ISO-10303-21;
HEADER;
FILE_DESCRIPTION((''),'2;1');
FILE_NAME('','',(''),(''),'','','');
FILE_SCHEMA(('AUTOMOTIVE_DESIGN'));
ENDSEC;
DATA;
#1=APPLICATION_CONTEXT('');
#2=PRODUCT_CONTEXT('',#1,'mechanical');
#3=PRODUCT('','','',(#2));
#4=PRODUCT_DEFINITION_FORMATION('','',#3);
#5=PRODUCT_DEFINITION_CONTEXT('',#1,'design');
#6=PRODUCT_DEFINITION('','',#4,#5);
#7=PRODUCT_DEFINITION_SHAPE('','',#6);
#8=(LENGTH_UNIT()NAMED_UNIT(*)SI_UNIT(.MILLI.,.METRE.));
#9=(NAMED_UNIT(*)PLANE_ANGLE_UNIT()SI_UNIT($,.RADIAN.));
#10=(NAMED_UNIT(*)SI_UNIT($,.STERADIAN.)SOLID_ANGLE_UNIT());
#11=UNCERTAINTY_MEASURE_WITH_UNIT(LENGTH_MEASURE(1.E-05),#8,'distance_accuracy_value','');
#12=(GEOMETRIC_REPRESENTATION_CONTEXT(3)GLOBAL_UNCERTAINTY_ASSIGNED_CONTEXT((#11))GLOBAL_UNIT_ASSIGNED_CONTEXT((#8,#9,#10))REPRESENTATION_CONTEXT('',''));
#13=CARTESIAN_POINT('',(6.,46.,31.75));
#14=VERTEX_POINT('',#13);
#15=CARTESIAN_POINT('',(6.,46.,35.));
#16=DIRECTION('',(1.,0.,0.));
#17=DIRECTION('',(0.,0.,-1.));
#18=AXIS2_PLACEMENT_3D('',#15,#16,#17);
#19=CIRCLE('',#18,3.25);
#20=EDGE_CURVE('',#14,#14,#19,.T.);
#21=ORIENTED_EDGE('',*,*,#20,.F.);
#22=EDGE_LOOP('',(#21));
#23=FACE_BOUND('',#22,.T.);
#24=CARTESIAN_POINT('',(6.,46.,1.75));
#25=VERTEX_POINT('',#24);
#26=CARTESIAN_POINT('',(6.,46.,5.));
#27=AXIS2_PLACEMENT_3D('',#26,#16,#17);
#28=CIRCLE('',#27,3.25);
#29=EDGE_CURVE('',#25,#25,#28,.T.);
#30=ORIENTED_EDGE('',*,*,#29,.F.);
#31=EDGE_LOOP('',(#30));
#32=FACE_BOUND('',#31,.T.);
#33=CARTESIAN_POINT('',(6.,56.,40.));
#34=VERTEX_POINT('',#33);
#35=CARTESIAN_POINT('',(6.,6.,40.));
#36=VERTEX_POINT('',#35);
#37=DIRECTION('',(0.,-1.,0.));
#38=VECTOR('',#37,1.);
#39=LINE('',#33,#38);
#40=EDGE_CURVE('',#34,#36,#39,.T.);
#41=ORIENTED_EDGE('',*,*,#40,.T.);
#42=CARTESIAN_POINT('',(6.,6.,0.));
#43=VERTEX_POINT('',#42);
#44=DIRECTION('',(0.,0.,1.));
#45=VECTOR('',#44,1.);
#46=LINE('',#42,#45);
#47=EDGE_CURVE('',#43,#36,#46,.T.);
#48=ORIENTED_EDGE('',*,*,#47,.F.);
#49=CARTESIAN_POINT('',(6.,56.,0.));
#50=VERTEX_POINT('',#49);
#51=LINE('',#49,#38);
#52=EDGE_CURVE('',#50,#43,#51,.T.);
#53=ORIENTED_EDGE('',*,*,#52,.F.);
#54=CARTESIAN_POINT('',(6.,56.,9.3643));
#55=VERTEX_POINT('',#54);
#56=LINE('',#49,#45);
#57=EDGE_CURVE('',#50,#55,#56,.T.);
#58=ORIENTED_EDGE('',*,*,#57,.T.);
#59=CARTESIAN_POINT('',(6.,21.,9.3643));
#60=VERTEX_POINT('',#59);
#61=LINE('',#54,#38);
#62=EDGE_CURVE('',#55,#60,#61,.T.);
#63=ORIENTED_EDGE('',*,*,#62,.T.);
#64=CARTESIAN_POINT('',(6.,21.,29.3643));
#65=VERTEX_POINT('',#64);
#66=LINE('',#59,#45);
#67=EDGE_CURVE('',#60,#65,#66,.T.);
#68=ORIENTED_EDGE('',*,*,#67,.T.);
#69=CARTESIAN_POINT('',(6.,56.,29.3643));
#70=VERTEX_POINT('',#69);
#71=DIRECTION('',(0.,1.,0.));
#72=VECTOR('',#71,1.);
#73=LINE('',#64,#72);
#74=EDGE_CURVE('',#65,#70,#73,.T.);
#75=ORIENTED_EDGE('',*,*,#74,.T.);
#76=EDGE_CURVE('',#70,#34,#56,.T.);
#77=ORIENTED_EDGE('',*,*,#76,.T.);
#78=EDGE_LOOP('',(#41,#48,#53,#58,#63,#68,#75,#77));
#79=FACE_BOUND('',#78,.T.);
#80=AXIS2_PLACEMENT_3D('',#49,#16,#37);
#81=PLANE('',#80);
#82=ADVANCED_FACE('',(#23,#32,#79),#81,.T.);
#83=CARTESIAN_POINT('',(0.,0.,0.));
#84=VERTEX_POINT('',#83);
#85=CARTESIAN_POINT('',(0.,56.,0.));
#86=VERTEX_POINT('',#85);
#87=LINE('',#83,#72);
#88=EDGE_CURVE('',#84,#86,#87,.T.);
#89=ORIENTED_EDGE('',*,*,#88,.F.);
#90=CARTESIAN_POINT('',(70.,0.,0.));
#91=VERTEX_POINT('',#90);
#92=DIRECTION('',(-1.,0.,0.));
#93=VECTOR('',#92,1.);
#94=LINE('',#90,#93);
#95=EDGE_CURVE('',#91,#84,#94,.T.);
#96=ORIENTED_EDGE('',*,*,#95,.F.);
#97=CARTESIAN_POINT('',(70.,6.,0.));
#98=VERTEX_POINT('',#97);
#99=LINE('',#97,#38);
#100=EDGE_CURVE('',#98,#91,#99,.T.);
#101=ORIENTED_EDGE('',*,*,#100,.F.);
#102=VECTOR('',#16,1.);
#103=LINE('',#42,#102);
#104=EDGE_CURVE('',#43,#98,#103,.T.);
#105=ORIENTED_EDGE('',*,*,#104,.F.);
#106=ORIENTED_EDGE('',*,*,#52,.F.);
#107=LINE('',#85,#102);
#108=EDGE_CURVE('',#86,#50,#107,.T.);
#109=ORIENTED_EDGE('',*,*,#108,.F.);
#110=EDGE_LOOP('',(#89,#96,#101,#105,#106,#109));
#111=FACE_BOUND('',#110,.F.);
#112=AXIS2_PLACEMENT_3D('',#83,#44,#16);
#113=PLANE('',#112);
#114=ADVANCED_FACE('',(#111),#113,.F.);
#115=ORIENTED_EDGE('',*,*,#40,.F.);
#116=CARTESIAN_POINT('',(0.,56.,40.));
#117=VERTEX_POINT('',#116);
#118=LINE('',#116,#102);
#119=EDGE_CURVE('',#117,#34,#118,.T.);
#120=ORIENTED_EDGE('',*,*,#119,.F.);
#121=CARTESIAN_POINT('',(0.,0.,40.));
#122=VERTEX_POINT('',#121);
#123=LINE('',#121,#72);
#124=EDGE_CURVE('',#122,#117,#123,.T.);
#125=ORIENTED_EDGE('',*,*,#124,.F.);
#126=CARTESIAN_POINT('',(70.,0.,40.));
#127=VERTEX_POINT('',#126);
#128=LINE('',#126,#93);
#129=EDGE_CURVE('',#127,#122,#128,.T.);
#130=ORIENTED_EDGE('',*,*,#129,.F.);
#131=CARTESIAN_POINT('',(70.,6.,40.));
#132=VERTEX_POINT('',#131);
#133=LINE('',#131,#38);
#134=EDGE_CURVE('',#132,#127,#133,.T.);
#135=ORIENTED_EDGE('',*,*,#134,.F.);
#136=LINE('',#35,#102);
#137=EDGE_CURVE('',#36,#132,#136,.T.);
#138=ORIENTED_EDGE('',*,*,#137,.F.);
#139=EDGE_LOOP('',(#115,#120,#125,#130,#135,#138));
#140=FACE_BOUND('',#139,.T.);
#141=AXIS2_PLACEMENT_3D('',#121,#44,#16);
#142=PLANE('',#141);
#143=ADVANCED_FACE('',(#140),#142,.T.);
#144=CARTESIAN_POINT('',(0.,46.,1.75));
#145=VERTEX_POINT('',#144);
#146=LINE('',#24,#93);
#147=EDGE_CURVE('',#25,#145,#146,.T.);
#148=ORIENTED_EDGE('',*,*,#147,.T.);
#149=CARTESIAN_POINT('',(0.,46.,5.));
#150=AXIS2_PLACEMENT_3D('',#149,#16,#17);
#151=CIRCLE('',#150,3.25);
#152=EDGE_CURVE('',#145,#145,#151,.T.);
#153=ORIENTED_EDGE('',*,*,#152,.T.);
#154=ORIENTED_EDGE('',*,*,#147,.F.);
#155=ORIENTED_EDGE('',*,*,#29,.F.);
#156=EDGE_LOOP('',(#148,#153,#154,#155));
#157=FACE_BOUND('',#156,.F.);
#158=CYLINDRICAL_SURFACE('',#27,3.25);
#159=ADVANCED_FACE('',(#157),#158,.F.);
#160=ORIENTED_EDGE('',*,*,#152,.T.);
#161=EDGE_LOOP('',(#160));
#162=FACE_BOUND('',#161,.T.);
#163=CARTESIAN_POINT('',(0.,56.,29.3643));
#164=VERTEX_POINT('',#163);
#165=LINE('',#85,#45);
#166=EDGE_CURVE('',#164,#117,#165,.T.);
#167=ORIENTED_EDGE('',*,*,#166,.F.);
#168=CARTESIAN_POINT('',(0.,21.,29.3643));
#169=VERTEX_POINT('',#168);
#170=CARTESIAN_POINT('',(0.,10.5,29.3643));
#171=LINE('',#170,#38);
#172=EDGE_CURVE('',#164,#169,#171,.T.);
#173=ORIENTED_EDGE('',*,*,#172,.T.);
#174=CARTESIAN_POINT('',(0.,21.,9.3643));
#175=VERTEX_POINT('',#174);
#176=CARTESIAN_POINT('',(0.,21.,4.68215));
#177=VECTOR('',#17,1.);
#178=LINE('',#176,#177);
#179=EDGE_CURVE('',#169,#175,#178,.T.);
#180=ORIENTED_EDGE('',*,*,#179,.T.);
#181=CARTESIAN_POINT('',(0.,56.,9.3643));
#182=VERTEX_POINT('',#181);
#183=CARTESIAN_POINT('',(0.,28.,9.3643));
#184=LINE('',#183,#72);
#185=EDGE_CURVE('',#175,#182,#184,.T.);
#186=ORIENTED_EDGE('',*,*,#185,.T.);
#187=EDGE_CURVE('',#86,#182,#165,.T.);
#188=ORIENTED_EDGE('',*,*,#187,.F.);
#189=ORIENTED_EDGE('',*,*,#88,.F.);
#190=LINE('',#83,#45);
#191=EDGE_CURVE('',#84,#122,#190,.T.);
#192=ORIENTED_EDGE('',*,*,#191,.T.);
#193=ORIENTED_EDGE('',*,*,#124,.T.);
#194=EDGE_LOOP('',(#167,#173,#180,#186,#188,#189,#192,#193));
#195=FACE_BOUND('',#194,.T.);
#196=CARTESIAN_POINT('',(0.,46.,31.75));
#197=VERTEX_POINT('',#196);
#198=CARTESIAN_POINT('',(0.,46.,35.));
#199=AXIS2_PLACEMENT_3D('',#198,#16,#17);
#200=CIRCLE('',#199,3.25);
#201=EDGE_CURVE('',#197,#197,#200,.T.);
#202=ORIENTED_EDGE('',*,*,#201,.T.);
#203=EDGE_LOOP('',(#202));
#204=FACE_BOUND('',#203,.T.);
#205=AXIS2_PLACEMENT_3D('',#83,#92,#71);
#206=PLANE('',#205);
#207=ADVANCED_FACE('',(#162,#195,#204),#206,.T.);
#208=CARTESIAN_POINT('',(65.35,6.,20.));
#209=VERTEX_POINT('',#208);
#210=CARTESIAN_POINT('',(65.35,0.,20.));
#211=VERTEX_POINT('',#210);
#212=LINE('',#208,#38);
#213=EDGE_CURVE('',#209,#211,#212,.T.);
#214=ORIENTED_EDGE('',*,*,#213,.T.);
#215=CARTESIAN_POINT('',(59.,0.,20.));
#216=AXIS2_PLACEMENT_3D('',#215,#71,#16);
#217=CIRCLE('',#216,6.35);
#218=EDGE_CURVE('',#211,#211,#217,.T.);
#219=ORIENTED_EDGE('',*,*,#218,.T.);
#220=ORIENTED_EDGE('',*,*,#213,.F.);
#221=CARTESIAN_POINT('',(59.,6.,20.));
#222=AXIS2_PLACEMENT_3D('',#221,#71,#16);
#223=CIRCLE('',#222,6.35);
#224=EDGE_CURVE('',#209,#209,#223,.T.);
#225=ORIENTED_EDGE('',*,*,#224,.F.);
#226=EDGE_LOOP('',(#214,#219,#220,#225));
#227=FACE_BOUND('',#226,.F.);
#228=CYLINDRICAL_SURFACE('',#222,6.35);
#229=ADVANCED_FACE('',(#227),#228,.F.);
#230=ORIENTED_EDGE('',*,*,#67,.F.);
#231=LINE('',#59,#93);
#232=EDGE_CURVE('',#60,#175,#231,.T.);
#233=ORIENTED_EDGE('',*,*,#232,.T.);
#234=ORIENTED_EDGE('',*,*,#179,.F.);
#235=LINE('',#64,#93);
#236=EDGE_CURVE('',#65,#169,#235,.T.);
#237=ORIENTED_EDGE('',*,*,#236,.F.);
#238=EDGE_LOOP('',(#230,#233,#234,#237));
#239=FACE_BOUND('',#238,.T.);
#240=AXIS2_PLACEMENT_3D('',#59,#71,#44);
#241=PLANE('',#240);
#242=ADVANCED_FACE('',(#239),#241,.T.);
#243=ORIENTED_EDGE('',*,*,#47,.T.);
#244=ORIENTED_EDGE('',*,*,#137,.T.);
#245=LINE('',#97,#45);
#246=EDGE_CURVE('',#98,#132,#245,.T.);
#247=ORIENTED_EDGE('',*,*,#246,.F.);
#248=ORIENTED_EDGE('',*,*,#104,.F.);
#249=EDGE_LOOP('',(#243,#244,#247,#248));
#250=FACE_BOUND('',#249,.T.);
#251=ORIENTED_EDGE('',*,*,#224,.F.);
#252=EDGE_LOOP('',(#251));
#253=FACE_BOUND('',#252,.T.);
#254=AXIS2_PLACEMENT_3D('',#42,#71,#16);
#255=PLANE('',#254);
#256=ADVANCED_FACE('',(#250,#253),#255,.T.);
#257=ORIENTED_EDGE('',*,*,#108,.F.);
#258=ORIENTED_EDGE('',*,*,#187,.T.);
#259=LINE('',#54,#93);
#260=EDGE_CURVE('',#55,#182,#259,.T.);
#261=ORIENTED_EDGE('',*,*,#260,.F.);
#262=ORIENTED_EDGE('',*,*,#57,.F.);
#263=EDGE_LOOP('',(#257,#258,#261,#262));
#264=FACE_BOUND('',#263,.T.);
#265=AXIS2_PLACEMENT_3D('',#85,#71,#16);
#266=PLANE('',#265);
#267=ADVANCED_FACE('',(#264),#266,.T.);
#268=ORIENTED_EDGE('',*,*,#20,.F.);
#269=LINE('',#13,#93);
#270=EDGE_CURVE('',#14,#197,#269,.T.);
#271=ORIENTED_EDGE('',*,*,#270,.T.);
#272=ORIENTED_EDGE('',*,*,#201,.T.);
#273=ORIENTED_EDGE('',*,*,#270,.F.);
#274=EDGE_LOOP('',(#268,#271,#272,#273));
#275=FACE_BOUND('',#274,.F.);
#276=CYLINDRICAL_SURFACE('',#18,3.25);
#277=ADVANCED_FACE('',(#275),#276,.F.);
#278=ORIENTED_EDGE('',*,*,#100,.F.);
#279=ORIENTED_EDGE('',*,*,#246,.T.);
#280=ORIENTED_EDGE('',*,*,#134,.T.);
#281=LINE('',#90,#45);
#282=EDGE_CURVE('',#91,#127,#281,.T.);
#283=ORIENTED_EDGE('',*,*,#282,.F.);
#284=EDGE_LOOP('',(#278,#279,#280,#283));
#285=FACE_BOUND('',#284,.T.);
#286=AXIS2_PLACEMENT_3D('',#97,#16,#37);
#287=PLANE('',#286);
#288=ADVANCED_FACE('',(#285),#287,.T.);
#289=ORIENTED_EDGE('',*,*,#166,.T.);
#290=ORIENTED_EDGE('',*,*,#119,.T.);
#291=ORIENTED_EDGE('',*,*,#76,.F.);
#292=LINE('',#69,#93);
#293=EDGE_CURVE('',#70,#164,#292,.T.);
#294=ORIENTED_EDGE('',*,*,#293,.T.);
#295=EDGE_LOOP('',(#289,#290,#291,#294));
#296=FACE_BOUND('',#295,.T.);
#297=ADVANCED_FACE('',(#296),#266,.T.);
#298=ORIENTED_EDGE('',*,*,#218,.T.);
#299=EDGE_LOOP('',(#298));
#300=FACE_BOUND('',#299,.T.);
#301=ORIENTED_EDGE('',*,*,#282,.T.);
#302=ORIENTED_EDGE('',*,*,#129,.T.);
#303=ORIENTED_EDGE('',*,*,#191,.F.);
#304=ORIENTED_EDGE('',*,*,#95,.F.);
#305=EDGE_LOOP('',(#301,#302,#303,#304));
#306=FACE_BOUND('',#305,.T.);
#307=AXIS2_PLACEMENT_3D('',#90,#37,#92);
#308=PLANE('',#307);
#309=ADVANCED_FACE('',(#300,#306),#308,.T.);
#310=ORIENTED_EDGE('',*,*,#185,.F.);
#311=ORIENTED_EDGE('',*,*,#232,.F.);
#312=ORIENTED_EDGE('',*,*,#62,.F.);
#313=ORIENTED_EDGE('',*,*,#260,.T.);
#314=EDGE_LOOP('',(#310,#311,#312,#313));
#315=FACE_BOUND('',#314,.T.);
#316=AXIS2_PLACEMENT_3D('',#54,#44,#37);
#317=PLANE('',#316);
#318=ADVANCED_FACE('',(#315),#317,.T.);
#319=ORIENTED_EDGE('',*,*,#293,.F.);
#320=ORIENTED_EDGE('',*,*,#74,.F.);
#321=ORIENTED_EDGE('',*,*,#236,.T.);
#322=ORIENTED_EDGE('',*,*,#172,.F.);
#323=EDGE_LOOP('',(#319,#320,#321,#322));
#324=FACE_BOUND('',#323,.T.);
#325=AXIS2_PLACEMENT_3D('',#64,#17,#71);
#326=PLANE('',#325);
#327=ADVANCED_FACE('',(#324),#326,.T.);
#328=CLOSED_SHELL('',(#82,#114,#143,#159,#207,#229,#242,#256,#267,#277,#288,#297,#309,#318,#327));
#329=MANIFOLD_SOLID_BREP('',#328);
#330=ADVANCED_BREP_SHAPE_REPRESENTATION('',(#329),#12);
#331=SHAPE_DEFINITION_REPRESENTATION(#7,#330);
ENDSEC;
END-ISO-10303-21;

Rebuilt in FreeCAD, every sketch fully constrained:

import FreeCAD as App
import Part
import Sketcher
Q = App.Units.Quantity

doc = App.newDocument("Part")
body = doc.addObject("PartDesign::Body", "Body")

# Sketch on XY plane
sketch1 = body.newObject("Sketcher::SketchObject", "Sketch")
sketch1.AttachmentSupport = (doc.getObject("XY_Plane"), [""])
sketch1.MapMode = "FlatFace"
sketch1.addGeometry(Part.LineSegment(App.Vector(0, 56, 0), App.Vector(0, 0, 0)), False)
sketch1.addGeometry(Part.LineSegment(App.Vector(0, 0, 0), App.Vector(70, 0, 0)), False)
sketch1.addGeometry(Part.LineSegment(App.Vector(70, 0, 0), App.Vector(70, 6, 0)), False)
sketch1.addGeometry(Part.LineSegment(App.Vector(70, 6, 0), App.Vector(6, 6, 0)), False)
sketch1.addGeometry(Part.LineSegment(App.Vector(6, 6, 0), App.Vector(6, 56, 0)), False)
sketch1.addGeometry(Part.LineSegment(App.Vector(6, 56, 0), App.Vector(0, 56, 0)), False)
sketch1.addConstraint(Sketcher.Constraint("Coincident", 0, 2, 1, 1))
sketch1.addConstraint(Sketcher.Constraint("Coincident", 1, 2, 2, 1))
sketch1.addConstraint(Sketcher.Constraint("Coincident", 2, 2, 3, 1))
sketch1.addConstraint(Sketcher.Constraint("Coincident", 3, 2, 4, 1))
sketch1.addConstraint(Sketcher.Constraint("Coincident", 4, 2, 5, 1))
sketch1.addConstraint(Sketcher.Constraint("Coincident", 5, 2, 0, 1))
sketch1.addConstraint(Sketcher.Constraint("Vertical", 0))
sketch1.addConstraint(Sketcher.Constraint("Horizontal", 1))
sketch1.addConstraint(Sketcher.Constraint("Vertical", 2))
sketch1.addConstraint(Sketcher.Constraint("Horizontal", 3))
sketch1.addConstraint(Sketcher.Constraint("Vertical", 4))
sketch1.addConstraint(Sketcher.Constraint("Horizontal", 5))
sketch1.addConstraint(Sketcher.Constraint("Coincident", 0, 2, -1, 1))
sketch1.addConstraint(Sketcher.Constraint("Equal", 5, 2))
sketch1.addConstraint(Sketcher.Constraint("DistanceX", 3, 2, 3, 1, Q("64 mm")))
sketch1.addConstraint(Sketcher.Constraint("DistanceX", 5, 2, 5, 1, Q("6 mm")))
sketch1.addConstraint(Sketcher.Constraint("DistanceY", 0, 2, 0, 1, Q("56 mm")))
pad1 = body.newObject("PartDesign::Pad", "Pad")
pad1.Profile = sketch1
pad1.Length = 40

# Sketch on XZ plane
sketch2 = body.newObject("Sketcher::SketchObject", "Sketch001")
sketch2.AttachmentSupport = (doc.getObject("XZ_Plane"), [""])
sketch2.MapMode = "FlatFace"
sketch2.AttachmentOffset = App.Placement(App.Vector(0, 0, -6), App.Rotation())
sketch2.addGeometry(Part.Circle(App.Vector(59, 20, 0), App.Vector(0, 0, 1), 6), False)
sketch2.addConstraint(Sketcher.Constraint("Diameter", 0, Q("12.7 mm")))
sketch2.addConstraint(Sketcher.Constraint("DistanceX", -1, 1, 0, 3, Q("59 mm")))
sketch2.addConstraint(Sketcher.Constraint("DistanceY", -1, 1, 0, 3, Q("20 mm")))
pocket1 = body.newObject("PartDesign::Pocket", "Pocket")
pocket1.Profile = sketch2
pocket1.Length = 40
pocket1.Reversed = True

# Sketch on YZ plane
sketch3 = body.newObject("Sketcher::SketchObject", "Sketch002")
sketch3.AttachmentSupport = (doc.getObject("YZ_Plane"), [""])
sketch3.MapMode = "FlatFace"
sketch3.AttachmentOffset = App.Placement(App.Vector(0, 0, 6), App.Rotation())
sketch3.addGeometry(Part.LineSegment(App.Vector(21, 9, 0), App.Vector(56, 9, 0)), False)
sketch3.addGeometry(Part.LineSegment(App.Vector(56, 9, 0), App.Vector(56, 29, 0)), False)
sketch3.addGeometry(Part.LineSegment(App.Vector(56, 29, 0), App.Vector(21, 29, 0)), False)
sketch3.addGeometry(Part.LineSegment(App.Vector(21, 29, 0), App.Vector(21, 9, 0)), False)
sketch3.addConstraint(Sketcher.Constraint("Coincident", 0, 2, 1, 1))
sketch3.addConstraint(Sketcher.Constraint("Coincident", 1, 2, 2, 1))
sketch3.addConstraint(Sketcher.Constraint("Coincident", 2, 2, 3, 1))
sketch3.addConstraint(Sketcher.Constraint("Coincident", 3, 2, 0, 1))
sketch3.addConstraint(Sketcher.Constraint("Horizontal", 0))
sketch3.addConstraint(Sketcher.Constraint("Vertical", 1))
sketch3.addConstraint(Sketcher.Constraint("Horizontal", 2))
sketch3.addConstraint(Sketcher.Constraint("Vertical", 3))
sketch3.addConstraint(Sketcher.Constraint("DistanceX", 0, 1, 0, 2, Q("35 mm")))
sketch3.addConstraint(Sketcher.Constraint("DistanceY", 1, 1, 1, 2, Q("20 mm")))
sketch3.addConstraint(Sketcher.Constraint("DistanceX", -1, 1, 0, 2, Q("56 mm")))
sketch3.addConstraint(Sketcher.Constraint("DistanceY", -1, 1, 0, 2, Q("9.3643 mm")))
pocket2 = body.newObject("PartDesign::Pocket", "Pocket001")
pocket2.Profile = sketch3
pocket2.Length = 10

# Sketch on YZ plane
sketch4 = body.newObject("Sketcher::SketchObject", "Sketch003")
sketch4.AttachmentSupport = (doc.getObject("YZ_Plane"), [""])
sketch4.MapMode = "FlatFace"
sketch4.AttachmentOffset = App.Placement(App.Vector(0, 0, 6), App.Rotation())
sketch4.addGeometry(Part.Circle(App.Vector(46, 35, 0), App.Vector(0, 0, 1), 3.2), False)
sketch4.addConstraint(Sketcher.Constraint("Diameter", 0, Q("6.5 mm")))
sketch4.addConstraint(Sketcher.Constraint("DistanceX", -1, 1, 0, 3, Q("46 mm")))
sketch4.addConstraint(Sketcher.Constraint("DistanceY", -1, 1, 0, 3, Q("35 mm")))
pocket3 = body.newObject("PartDesign::Pocket", "Pocket002")
pocket3.Profile = sketch4
pocket3.Length = 10
doc.recompute()

linearpattern = body.newObject("PartDesign::LinearPattern", "LinearPattern")
linearpattern.Originals = [pocket3]
linearpattern.Direction = (doc.getObject("Z_Axis"), [""])
linearpattern.Mode = "offset"
linearpattern.Offset = 30
linearpattern.Occurrences = 2
linearpattern.Reversed = True
body.Tip = linearpattern

doc.recompute()
